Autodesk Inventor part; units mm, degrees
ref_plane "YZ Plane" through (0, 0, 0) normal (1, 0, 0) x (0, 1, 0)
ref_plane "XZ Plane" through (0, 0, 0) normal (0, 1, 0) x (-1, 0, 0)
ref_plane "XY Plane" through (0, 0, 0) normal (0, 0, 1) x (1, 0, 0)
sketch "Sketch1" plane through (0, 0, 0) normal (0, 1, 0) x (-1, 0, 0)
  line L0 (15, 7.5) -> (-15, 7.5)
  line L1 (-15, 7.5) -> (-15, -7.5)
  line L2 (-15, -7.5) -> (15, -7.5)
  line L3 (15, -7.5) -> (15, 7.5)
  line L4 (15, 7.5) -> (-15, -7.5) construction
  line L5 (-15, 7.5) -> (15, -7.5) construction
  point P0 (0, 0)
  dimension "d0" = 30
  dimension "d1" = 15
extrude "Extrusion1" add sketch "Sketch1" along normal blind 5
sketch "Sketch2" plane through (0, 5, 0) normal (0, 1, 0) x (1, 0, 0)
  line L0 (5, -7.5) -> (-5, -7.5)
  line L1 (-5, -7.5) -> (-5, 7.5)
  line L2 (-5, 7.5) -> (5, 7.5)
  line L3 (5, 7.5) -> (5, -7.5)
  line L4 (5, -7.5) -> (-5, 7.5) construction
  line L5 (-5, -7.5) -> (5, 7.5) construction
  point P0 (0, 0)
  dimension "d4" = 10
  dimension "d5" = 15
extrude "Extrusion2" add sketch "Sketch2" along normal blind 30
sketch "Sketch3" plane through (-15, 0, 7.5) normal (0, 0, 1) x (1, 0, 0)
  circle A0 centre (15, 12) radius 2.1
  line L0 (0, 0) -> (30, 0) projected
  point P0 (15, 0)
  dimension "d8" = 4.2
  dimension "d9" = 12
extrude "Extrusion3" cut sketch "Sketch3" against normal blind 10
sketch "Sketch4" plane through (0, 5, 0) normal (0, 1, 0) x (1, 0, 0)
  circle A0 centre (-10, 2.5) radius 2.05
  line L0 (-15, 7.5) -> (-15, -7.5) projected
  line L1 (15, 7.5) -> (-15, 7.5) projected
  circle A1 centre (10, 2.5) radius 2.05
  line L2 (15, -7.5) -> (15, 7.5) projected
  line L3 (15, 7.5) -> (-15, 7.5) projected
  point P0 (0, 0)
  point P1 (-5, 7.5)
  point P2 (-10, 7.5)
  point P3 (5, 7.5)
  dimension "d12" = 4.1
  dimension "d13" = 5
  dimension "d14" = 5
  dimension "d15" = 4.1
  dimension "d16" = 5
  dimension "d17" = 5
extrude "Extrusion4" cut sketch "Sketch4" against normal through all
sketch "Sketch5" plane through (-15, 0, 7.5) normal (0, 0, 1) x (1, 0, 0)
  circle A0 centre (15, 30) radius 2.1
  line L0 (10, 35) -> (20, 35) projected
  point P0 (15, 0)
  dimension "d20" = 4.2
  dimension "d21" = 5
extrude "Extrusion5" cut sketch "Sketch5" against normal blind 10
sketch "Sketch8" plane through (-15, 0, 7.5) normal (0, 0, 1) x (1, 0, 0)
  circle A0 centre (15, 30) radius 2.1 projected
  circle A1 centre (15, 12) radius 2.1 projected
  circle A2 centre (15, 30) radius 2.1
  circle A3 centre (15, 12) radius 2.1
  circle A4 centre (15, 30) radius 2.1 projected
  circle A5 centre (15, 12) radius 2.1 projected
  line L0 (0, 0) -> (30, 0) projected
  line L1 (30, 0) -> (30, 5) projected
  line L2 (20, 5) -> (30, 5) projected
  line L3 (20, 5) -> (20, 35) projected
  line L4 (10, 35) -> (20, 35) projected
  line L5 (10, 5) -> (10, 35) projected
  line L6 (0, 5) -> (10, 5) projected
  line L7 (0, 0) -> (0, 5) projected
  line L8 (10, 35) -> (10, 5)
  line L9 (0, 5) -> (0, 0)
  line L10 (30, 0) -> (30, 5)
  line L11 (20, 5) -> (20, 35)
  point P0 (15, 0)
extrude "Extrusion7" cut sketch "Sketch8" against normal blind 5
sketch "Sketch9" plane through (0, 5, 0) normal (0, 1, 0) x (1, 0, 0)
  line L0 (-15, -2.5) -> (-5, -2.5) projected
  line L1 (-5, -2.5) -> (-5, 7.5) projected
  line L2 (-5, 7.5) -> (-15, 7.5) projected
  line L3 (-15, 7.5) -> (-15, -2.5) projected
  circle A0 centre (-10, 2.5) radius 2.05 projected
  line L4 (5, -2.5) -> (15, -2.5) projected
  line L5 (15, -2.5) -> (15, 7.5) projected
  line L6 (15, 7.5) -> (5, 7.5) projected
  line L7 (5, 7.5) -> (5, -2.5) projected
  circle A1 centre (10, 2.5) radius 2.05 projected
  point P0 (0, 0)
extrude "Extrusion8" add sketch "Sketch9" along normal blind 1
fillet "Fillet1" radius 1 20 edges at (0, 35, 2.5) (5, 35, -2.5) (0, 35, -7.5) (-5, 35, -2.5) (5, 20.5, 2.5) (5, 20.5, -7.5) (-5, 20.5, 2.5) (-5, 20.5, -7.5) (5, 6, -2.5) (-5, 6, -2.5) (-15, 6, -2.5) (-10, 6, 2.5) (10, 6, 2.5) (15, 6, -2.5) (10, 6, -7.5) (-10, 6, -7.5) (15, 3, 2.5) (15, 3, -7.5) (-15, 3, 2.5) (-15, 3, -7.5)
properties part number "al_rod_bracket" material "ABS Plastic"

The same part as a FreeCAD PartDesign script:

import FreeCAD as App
import Part
import Sketcher
from FreeCAD import Vector


def edges_at(feature, points):
    """Names of the edges that pass closest to the given points."""
    edges = feature.Shape.Edges
    near = lambda p: min(range(len(edges)), key=lambda i: edges[i].distToShape(Part.Vertex(*p))[0])
    return sorted({f"Edge{near(p) + 1}" for p in points})

doc = App.newDocument("Part")
body = doc.addObject("PartDesign::Body", "Body")

# Sketch on XZ plane
sketch1 = body.newObject("Sketcher::SketchObject", "Sketch")
sketch1.AttachmentSupport = (doc.getObject("XZ_Plane"), [""])
sketch1.MapMode = "FlatFace"
sketch1.addGeometry([
    Part.LineSegment(Vector(-15, -8, 0), Vector(-15, 8, 0)),
    Part.LineSegment(Vector(-15, 8, 0), Vector(15, 8, 0)),
    Part.LineSegment(Vector(15, 8, 0), Vector(15, -8, 0)),
    Part.LineSegment(Vector(15, -8, 0), Vector(-15, -8, 0)),
], False)
sketch1.addConstraint([
    Sketcher.Constraint("Coincident", 0, 2, 1, 1),
    Sketcher.Constraint("Coincident", 1, 2, 2, 1),
    Sketcher.Constraint("Coincident", 2, 2, 3, 1),
    Sketcher.Constraint("Coincident", 3, 2, 0, 1),
    Sketcher.Constraint("Vertical", 0),
    Sketcher.Constraint("Horizontal", 1),
    Sketcher.Constraint("Vertical", 2),
    Sketcher.Constraint("Horizontal", 3),
    Sketcher.Constraint("Symmetric", 0, 2, 2, 2, -1, 1),
    Sketcher.Constraint("DistanceX", 1, 1, 1, 2, 30.0),
    Sketcher.Constraint("DistanceY", 0, 1, 0, 2, 15.0),
])
pad1 = body.newObject("PartDesign::Pad", "Pad")
pad1.Profile = sketch1
pad1.Length = 5
pad1.Reversed = True

# Sketch on XZ plane
sketch2 = body.newObject("Sketcher::SketchObject", "Sketch001")
sketch2.AttachmentSupport = (doc.getObject("XZ_Plane"), [""])
sketch2.MapMode = "FlatFace"
sketch2.AttachmentOffset = App.Placement(Vector(0, 0, -5), App.Rotation())
sketch2.addGeometry([
    Part.LineSegment(Vector(-5, 8, 0), Vector(5, 8, 0)),
    Part.LineSegment(Vector(5, 8, 0), Vector(5, -8, 0)),
    Part.LineSegment(Vector(5, -8, 0), Vector(-5, -8, 0)),
    Part.LineSegment(Vector(-5, -8, 0), Vector(-5, 8, 0)),
], False)
sketch2.addConstraint([
    Sketcher.Constraint("Coincident", 0, 2, 1, 1),
    Sketcher.Constraint("Coincident", 1, 2, 2, 1),
    Sketcher.Constraint("Coincident", 2, 2, 3, 1),
    Sketcher.Constraint("Coincident", 3, 2, 0, 1),
    Sketcher.Constraint("Horizontal", 0),
    Sketcher.Constraint("Vertical", 1),
    Sketcher.Constraint("Horizontal", 2),
    Sketcher.Constraint("Vertical", 3),
    Sketcher.Constraint("Symmetric", 0, 2, 2, 2, -1, 1),
    Sketcher.Constraint("DistanceX", 0, 1, 0, 2, 10.0),
    Sketcher.Constraint("DistanceY", 1, 2, 1, 1, 15.0),
])
pad2 = body.newObject("PartDesign::Pad", "Pad001")
pad2.Profile = sketch2
pad2.Length = 30
pad2.Reversed = True

# Sketch on XY plane
sketch3 = body.newObject("Sketcher::SketchObject", "Sketch002")
sketch3.AttachmentSupport = (doc.getObject("XY_Plane"), [""])
sketch3.MapMode = "FlatFace"
sketch3.AttachmentOffset = App.Placement(Vector(0, 0, 7.5), App.Rotation())
sketch3.addGeometry(Part.Circle(Vector(0, 12, 0), Vector(0, 0, 1), 2.1), False)
sketch3.addConstraint([
    Sketcher.Constraint("PointOnObject", 0, 3, -2),
    Sketcher.Constraint("Diameter", 0, 4.2),
    Sketcher.Constraint("DistanceY", -1, 1, 0, 3, 12.0),
])
pocket1 = body.newObject("PartDesign::Pocket", "Pocket")
pocket1.Profile = sketch3
pocket1.Length = 10

# Sketch on XZ plane
sketch4 = body.newObject("Sketcher::SketchObject", "Sketch003")
sketch4.AttachmentSupport = (doc.getObject("XZ_Plane"), [""])
sketch4.MapMode = "FlatFace"
sketch4.AttachmentOffset = App.Placement(Vector(0, 0, -5), App.Rotation())
sketch4.addGeometry([
    Part.Circle(Vector(-10, -2.5, 0), Vector(0, 0, 1), 2),
    Part.Circle(Vector(10, -2.5, 0), Vector(0, 0, 1), 2),
], False)
sketch4.addConstraint([
    Sketcher.Constraint("Equal", 0, 1),
    Sketcher.Constraint("Symmetric", 0, 3, 1, 3, -2),
    Sketcher.Constraint("Diameter", 0, 4.1),
    Sketcher.Constraint("DistanceX", 0, 3, -1, 1, 10.0),
    Sketcher.Constraint("DistanceY", 0, 3, -1, 1, 2.5),
])
pocket2 = body.newObject("PartDesign::Pocket", "Pocket001")
pocket2.Profile = sketch4
pocket2.Type = "ThroughAll"
pocket2.Reversed = True

# Sketch on XY plane
sketch5 = body.newObject("Sketcher::SketchObject", "Sketch004")
sketch5.AttachmentSupport = (doc.getObject("XY_Plane"), [""])
sketch5.MapMode = "FlatFace"
sketch5.AttachmentOffset = App.Placement(Vector(0, 0, 7.5), App.Rotation())
sketch5.addGeometry(Part.Circle(Vector(0, 30, 0), Vector(0, 0, 1), 2.1), False)
sketch5.addConstraint([
    Sketcher.Constraint("PointOnObject", 0, 3, -2),
    Sketcher.Constraint("Diameter", 0, 4.2),
    Sketcher.Constraint("DistanceY", -1, 1, 0, 3, 30.0),
])
pocket3 = body.newObject("PartDesign::Pocket", "Pocket002")
pocket3.Profile = sketch5
pocket3.Length = 10

# Sketch on XY plane
sketch6 = body.newObject("Sketcher::SketchObject", "Sketch005")
sketch6.AttachmentSupport = (doc.getObject("XY_Plane"), [""])
sketch6.MapMode = "FlatFace"
sketch6.AttachmentOffset = App.Placement(Vector(0, 0, 7.5), App.Rotation())
sketch6.addGeometry([
    Part.LineSegment(Vector(-15, 5, 0), Vector(-15, 0, 0)),  # 0
    Part.LineSegment(Vector(-15, 0, 0), Vector(15, 0, 0)),  # 1
    Part.LineSegment(Vector(15, 0, 0), Vector(15, 5, 0)),  # 2
    Part.LineSegment(Vector(15, 5, 0), Vector(5, 5, 0)),  # 3
    Part.LineSegment(Vector(5, 5, 0), Vector(5, 35, 0)),  # 4
    Part.LineSegment(Vector(5, 35, 0), Vector(-5, 35, 0)),  # 5
    Part.LineSegment(Vector(-5, 35, 0), Vector(-5, 5, 0)),  # 6
    Part.LineSegment(Vector(-5, 5, 0), Vector(-15, 5, 0)),  # 7
    Part.Circle(Vector(0, 12, 0), Vector(0, 0, 1), 2.1),  # 8
    Part.Circle(Vector(0, 30, 0), Vector(0, 0, 1), 2.1),  # 9
], False)
sketch6.addConstraint([
    Sketcher.Constraint("Coincident", 0, 2, 1, 1),
    Sketcher.Constraint("Coincident", 1, 2, 2, 1),
    Sketcher.Constraint("Coincident", 2, 2, 3, 1),
    Sketcher.Constraint("Coincident", 3, 2, 4, 1),
    Sketcher.Constraint("Coincident", 4, 2, 5, 1),
    Sketcher.Constraint("Coincident", 5, 2, 6, 1),
    Sketcher.Constraint("Coincident", 6, 2, 7, 1),
    Sketcher.Constraint("Coincident", 7, 2, 0, 1),
    Sketcher.Constraint("Vertical", 0),
    Sketcher.Constraint("Horizontal", 1),
    Sketcher.Constraint("Vertical", 2),
    Sketcher.Constraint("Horizontal", 3),
    Sketcher.Constraint("Vertical", 4),
    Sketcher.Constraint("Horizontal", 5),
    Sketcher.Constraint("Vertical", 6),
    Sketcher.Constraint("Horizontal", 7),
    Sketcher.Constraint("Equal", 8, 9),
    Sketcher.Constraint("Symmetric", 0, 2, 1, 2, -1, 1),
    Sketcher.Constraint("Symmetric", 3, 2, 6, 2, -2),
    Sketcher.Constraint("PointOnObject", 8, 3, -2),
    Sketcher.Constraint("PointOnObject", 9, 3, -2),
    Sketcher.Constraint("Equal", 3, 5),
    Sketcher.Constraint("Equal", 1, 4),
    Sketcher.Constraint("Diameter", 8, 4.2),
    Sketcher.Constraint("DistanceX", 1, 1, 1, 2, 30.0),
    Sketcher.Constraint("DistanceY", 0, 2, 0, 1, 5.0),
    Sketcher.Constraint("DistanceY", -1, 1, 8, 3, 12.0),
    Sketcher.Constraint("DistanceY", -1, 1, 9, 3, 30.0),
])
pocket4 = body.newObject("PartDesign::Pocket", "Pocket003")
pocket4.Profile = sketch6
pocket4.Length = 5

# Sketch on XZ plane
sketch7 = body.newObject("Sketcher::SketchObject", "Sketch006")
sketch7.AttachmentSupport = (doc.getObject("XZ_Plane"), [""])
sketch7.MapMode = "FlatFace"
sketch7.AttachmentOffset = App.Placement(Vector(0, 0, -5), App.Rotation())
sketch7.addGeometry([
    Part.LineSegment(Vector(-15, -7.5, 0), Vector(-15, 2.5, 0)),  # 0
    Part.LineSegment(Vector(-15, 2.5, 0), Vector(-5, 2.5, 0)),  # 1
    Part.LineSegment(Vector(-5, 2.5, 0), Vector(-5, -7.5, 0)),  # 2
    Part.LineSegment(Vector(-5, -7.5, 0), Vector(-15, -7.5, 0)),  # 3
    Part.Circle(Vector(-10, -2.5, 0), Vector(0, 0, 1), 2),  # 4
    Part.LineSegment(Vector(5, -7.5, 0), Vector(5, 2.5, 0)),  # 5
    Part.LineSegment(Vector(5, 2.5, 0), Vector(15, 2.5, 0)),  # 6
    Part.LineSegment(Vector(15, 2.5, 0), Vector(15, -7.5, 0)),  # 7
    Part.LineSegment(Vector(15, -7.5, 0), Vector(5, -7.5, 0)),  # 8
    Part.Circle(Vector(10, -2.5, 0), Vector(0, 0, 1), 2),  # 9
], False)
sketch7.addConstraint([
    Sketcher.Constraint("Coincident", 0, 2, 1, 1),
    Sketcher.Constraint("Coincident", 1, 2, 2, 1),
    Sketcher.Constraint("Coincident", 2, 2, 3, 1),
    Sketcher.Constraint("Coincident", 3, 2, 0, 1),
    Sketcher.Constraint("Coincident", 5, 2, 6, 1),
    Sketcher.Constraint("Coincident", 6, 2, 7, 1),
    Sketcher.Constraint("Coincident", 7, 2, 8, 1),
    Sketcher.Constraint("Coincident", 8, 2, 5, 1),
    Sketcher.Constraint("Vertical", 0),
    Sketcher.Constraint("Horizontal", 1),
    Sketcher.Constraint("Vertical", 2),
    Sketcher.Constraint("Horizontal", 3),
    Sketcher.Constraint("Vertical", 5),
    Sketcher.Constraint("Horizontal", 6),
    Sketcher.Constraint("Vertical", 7),
    Sketcher.Constraint("Horizontal", 8),
    Sketcher.Constraint("Equal", 4, 9),
    Sketcher.Constraint("Symmetric", 4, 3, 9, 3, -2),
    Sketcher.Constraint("Symmetric", 1, 2, 5, 2, -2),
    Sketcher.Constraint("Symmetric", 3, 2, 7, 2, -2),
    Sketcher.Constraint("Equal", 8, 0),
    Sketcher.Constraint("Diameter", 4, 4.1),
    Sketcher.Constraint("DistanceX", 1, 1, 1, 2, 10.0),
    Sketcher.Constraint("DistanceX", 4, 3, -1, 1, 10.0),
    Sketcher.Constraint("DistanceX", 0, 2, -1, 1, 15.0),
    Sketcher.Constraint("DistanceY", 4, 3, 0, 2, 5.0),
    Sketcher.Constraint("DistanceY", 4, 3, -1, 1, 2.5),
])
pad3 = body.newObject("PartDesign::Pad", "Pad002")
pad3.Profile = sketch7
pad3.Length = 1
pad3.Reversed = True
doc.recompute()

fillet = body.newObject("PartDesign::Fillet", "Fillet")
fillet.Base = (pad3, edges_at(pad3, [
    (0, 35, 2.5),
    (5, 35, -2.5),
    (0, 35, -7.5),
    (-5, 35, -2.5),
    (5, 20.5, 2.5),
    (5, 20.5, -7.5),
    (-5, 20.5, 2.5),
    (-5, 20.5, -7.5),
    (5, 6, -2.5),
    (-5, 6, -2.5),
    (-15, 6, -2.5),
    (-10, 6, 2.5),
    (10, 6, 2.5),
    (15, 6, -2.5),
    (10, 6, -7.5),
    (-10, 6, -7.5),
    (15, 3, 2.5),
    (15, 3, -7.5),
    (-15, 3, 2.5),
    (-15, 3, -7.5),
]))
fillet.Radius = 1

doc.recompute()
